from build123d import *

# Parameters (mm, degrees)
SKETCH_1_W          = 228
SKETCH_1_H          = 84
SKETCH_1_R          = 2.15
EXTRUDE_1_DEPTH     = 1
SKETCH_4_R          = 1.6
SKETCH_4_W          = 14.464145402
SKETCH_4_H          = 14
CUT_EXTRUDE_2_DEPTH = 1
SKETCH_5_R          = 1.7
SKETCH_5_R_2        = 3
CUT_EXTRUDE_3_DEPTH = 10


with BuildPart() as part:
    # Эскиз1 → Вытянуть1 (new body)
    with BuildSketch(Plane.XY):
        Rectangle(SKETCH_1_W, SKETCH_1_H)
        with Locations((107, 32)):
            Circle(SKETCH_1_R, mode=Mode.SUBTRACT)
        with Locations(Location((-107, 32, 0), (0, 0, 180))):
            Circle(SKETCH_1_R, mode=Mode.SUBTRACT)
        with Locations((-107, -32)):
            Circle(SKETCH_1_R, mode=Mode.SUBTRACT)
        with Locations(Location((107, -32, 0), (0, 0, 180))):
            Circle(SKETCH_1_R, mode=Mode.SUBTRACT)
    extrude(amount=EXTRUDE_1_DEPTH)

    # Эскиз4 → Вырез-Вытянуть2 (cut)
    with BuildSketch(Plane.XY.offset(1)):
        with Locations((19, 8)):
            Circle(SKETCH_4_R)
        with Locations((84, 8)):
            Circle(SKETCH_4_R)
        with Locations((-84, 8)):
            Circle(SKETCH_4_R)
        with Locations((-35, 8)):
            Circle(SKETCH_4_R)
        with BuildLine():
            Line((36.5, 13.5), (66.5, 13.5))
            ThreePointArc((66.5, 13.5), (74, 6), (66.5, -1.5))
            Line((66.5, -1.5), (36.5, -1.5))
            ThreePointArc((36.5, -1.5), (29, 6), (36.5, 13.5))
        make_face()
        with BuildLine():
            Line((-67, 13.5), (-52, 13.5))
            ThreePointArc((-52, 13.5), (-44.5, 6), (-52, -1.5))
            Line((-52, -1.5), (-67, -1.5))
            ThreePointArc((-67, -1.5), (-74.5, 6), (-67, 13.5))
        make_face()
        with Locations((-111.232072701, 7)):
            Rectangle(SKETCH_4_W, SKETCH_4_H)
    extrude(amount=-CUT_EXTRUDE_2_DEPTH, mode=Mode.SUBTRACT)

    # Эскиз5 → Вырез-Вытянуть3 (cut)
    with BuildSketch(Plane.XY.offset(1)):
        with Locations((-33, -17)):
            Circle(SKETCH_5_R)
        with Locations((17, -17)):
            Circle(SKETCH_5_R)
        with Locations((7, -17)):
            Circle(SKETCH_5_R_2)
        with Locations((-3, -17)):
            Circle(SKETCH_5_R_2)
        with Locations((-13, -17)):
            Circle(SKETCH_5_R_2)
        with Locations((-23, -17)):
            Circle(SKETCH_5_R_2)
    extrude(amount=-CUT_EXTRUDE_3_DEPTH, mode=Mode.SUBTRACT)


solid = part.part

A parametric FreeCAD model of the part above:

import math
import FreeCAD as App
import Part
import Sketcher
from FreeCAD import Vector

doc = App.newDocument("Part")
body = doc.addObject("PartDesign::Body", "Body")

sketch1 = doc.addObject("Sketcher::SketchObject", "Sketch")
body.addObject(sketch1)
sketch1.AttachmentSupport = (doc.XY_Plane, [""])
sketch1.MapMode = "FlatFace"
sketch1.addGeometry([
    Part.LineSegment(Vector(-114, 42, 0), Vector(-114, -42, 0)),
    Part.LineSegment(Vector(-114, -42, 0), Vector(114, -42, 0)),
    Part.LineSegment(Vector(114, -42, 0), Vector(114, 42, 0)),
    Part.LineSegment(Vector(114, 42, 0), Vector(-114, 42, 0)),
    Part.Circle(Vector(-107, -32, 0), Vector(0, 0, 1), 2.15),
    Part.Circle(Vector(107, -32, 0), Vector(0, 0, 1), 2.15),
    Part.Circle(Vector(-107, 32, 0), Vector(0, 0, 1), 2.15),
    Part.Circle(Vector(107, 32, 0), Vector(0, 0, 1), 2.15),
], False)
sketch1.addConstraint([
    Sketcher.Constraint("Coincident", 0, 2, 1, 1),
    Sketcher.Constraint("Coincident", 1, 2, 2, 1),
    Sketcher.Constraint("Coincident", 2, 2, 3, 1),
    Sketcher.Constraint("Coincident", 3, 2, 0, 1),
    Sketcher.Constraint("Vertical", 0),
    Sketcher.Constraint("Horizontal", 1),
    Sketcher.Constraint("Vertical", 2),
    Sketcher.Constraint("Horizontal", 3),
    Sketcher.Constraint("Equal", 4, 5),
    Sketcher.Constraint("Equal", 5, 6),
    Sketcher.Constraint("Equal", 6, 7),
    Sketcher.Constraint("Symmetric", 5, 3, 6, 3, -1, 1),
    Sketcher.Constraint("Symmetric", 4, 3, 7, 3, -1, 1),
    Sketcher.Constraint("Symmetric", 0, 2, 2, 2, -1, 1),
    Sketcher.Constraint("Symmetric", 4, 3, 5, 3, -2),
    Sketcher.Constraint("Diameter", 4, 4.3),
    Sketcher.Constraint("DistanceX", 1, 1, 1, 2, 228.0),
    Sketcher.Constraint("DistanceY", 0, 2, 0, 1, 84.0),
    Sketcher.Constraint("DistanceX", 4, 3, -1, 1, 107.0),
    Sketcher.Constraint("DistanceY", 4, 3, -1, 1, 32.0),
])
pad1 = doc.addObject("PartDesign::Pad", "Pad")
body.addObject(pad1)
pad1.Profile = sketch1
pad1.Length = 1

sketch2 = doc.addObject("Sketcher::SketchObject", "Sketch001")
body.addObject(sketch2)
sketch2.AttachmentSupport = (doc.XY_Plane, [""])
sketch2.MapMode = "FlatFace"
sketch2.AttachmentOffset = App.Placement(Vector(0, 0, 1), App.Rotation())
sketch2.addGeometry([
    Part.Circle(Vector(19, 8, 0), Vector(0, 0, 1), 1.6),
    Part.Circle(Vector(84, 8, 0), Vector(0, 0, 1), 1.6),
    Part.Circle(Vector(-84, 8, 0), Vector(0, 0, 1), 1.6),
    Part.Circle(Vector(-35, 8, 0), Vector(0, 0, 1), 1.6),
    Part.LineSegment(Vector(66.5, 13.5, 0), Vector(36.5, 13.5, 0)),
    Part.ArcOfCircle(Part.Circle(Vector(36.5, 6, 0), Vector(0, 0, 1), 7.5), math.radians(90), math.radians(270)),
    Part.LineSegment(Vector(36.5, -1.5, 0), Vector(66.5, -1.5, 0)),
    Part.ArcOfCircle(Part.Circle(Vector(66.5, 6, 0), Vector(0, 0, 1), 7.5), math.radians(-90), math.radians(90)),
    Part.LineSegment(Vector(-52, 13.5, 0), Vector(-67, 13.5, 0)),
    Part.ArcOfCircle(Part.Circle(Vector(-67, 6, 0), Vector(0, 0, 1), 7.5), math.radians(90), math.radians(270)),
    Part.LineSegment(Vector(-67, -1.5, 0), Vector(-52, -1.5, 0)),
    Part.ArcOfCircle(Part.Circle(Vector(-52, 6, 0), Vector(0, 0, 1), 7.5), math.radians(-90), math.radians(90)),
    Part.LineSegment(Vector(-118.464145, 14, 0), Vector(-118.464145, 0, 0)),
    Part.LineSegment(Vector(-118.464145, 0, 0), Vector(-104, 0, 0)),
    Part.LineSegment(Vector(-104, 0, 0), Vector(-104, 14, 0)),
    Part.LineSegment(Vector(-104, 14, 0), Vector(-118.464145, 14, 0)),
], False)
sketch2.addConstraint([
    Sketcher.Constraint("Tangent", 4, 2, 5, 1),
    Sketcher.Constraint("Tangent", 5, 2, 6, 1),
    Sketcher.Constraint("Tangent", 6, 2, 7, 1),
    Sketcher.Constraint("Tangent", 7, 2, 4, 1),
    Sketcher.Constraint("Tangent", 8, 2, 9, 1),
    Sketcher.Constraint("Tangent", 9, 2, 10, 1),
    Sketcher.Constraint("Tangent", 10, 2, 11, 1),
    Sketcher.Constraint("Tangent", 11, 2, 8, 1),
    Sketcher.Constraint("Coincident", 12, 2, 13, 1),
    Sketcher.Constraint("Coincident", 13, 2, 14, 1),
    Sketcher.Constraint("Coincident", 14, 2, 15, 1),
    Sketcher.Constraint("Coincident", 15, 2, 12, 1),
    Sketcher.Constraint("Horizontal", 4),
    Sketcher.Constraint("Horizontal", 6),
    Sketcher.Constraint("Horizontal", 8),
    Sketcher.Constraint("Horizontal", 10),
    Sketcher.Constraint("Vertical", 12),
    Sketcher.Constraint("Horizontal", 13),
    Sketcher.Constraint("Vertical", 14),
    Sketcher.Constraint("Horizontal", 15),
    Sketcher.Constraint("Equal", 0, 1),
    Sketcher.Constraint("Equal", 1, 2),
    Sketcher.Constraint("Equal", 2, 3),
    Sketcher.Constraint("Equal", 7, 9),
    Sketcher.Constraint("Symmetric", 1, 3, 2, 3, -2),
    Sketcher.Constraint("PointOnObject", 12, 2, -1),
    Sketcher.Constraint("Horizontal", 0, 3, 1, 3),
    Sketcher.Constraint("Horizontal", 2, 3, 3, 3),
    Sketcher.Constraint("Horizontal", 7, 3, 9, 3),
    Sketcher.Constraint("Diameter", 0, 3.2),
    Sketcher.Constraint("Radius", 5, 7.5),
    Sketcher.Constraint("DistanceX", 4, 2, 4, 1, 30.0),
    Sketcher.Constraint("DistanceX", 8, 2, 8, 1, 15.0),
    Sketcher.Constraint("DistanceY", 12, 2, 12, 1, 14.0),
    Sketcher.Constraint("DistanceX", -1, 1, 0, 3, 19.0),
    Sketcher.Constraint("DistanceY", -1, 1, 0, 3, 8.0),
    Sketcher.Constraint("DistanceX", -1, 1, 1, 3, 84.0),
    Sketcher.Constraint("DistanceX", 3, 3, -1, 1, 35.0),
    Sketcher.Constraint("DistanceY", -1, 1, 5, 3, 6.0),
    Sketcher.Constraint("DistanceX", 9, 3, -1, 1, 67.0),
    Sketcher.Constraint("DistanceX", 13, 2, -1, 1, 104.0),
    Sketcher.Constraint("DistanceX", -1, 1, 5, 3, 36.5),
    Sketcher.Constraint("DistanceX", 13, 1, 13, 2, 14.464145),
])
pocket1 = doc.addObject("PartDesign::Pocket", "Pocket")
body.addObject(pocket1)
pocket1.Profile = sketch2
pocket1.Length = 1

sketch3 = doc.addObject("Sketcher::SketchObject", "Sketch002")
body.addObject(sketch3)
sketch3.AttachmentSupport = (doc.XY_Plane, [""])
sketch3.MapMode = "FlatFace"
sketch3.AttachmentOffset = App.Placement(Vector(0, 0, 1), App.Rotation())
sketch3.addGeometry([
    Part.Circle(Vector(-33, -17, 0), Vector(0, 0, 1), 1.7),
    Part.Circle(Vector(17, -17, 0), Vector(0, 0, 1), 1.7),
    Part.Circle(Vector(7, -17, 0), Vector(0, 0, 1), 3),
    Part.Circle(Vector(-3, -17, 0), Vector(0, 0, 1), 3),
    Part.Circle(Vector(-13, -17, 0), Vector(0, 0, 1), 3),
    Part.Circle(Vector(-23, -17, 0), Vector(0, 0, 1), 3),
], False)
sketch3.addConstraint([
    Sketcher.Constraint("Equal", 0, 1),
    Sketcher.Constraint("Equal", 2, 3),
    Sketcher.Constraint("Equal", 3, 4),
    Sketcher.Constraint("Equal", 4, 5),
    Sketcher.Constraint("Horizontal", 0, 3, 1, 3),
    Sketcher.Constraint("Horizontal", 1, 3, 2, 3),
    Sketcher.Constraint("Horizontal", 2, 3, 3, 3),
    Sketcher.Constraint("Horizontal", 3, 3, 4, 3),
    Sketcher.Constraint("Horizontal", 4, 3, 5, 3),
    Sketcher.Constraint("Diameter", 2, 6.0),
    Sketcher.Constraint("Diameter", 0, 3.4),
    Sketcher.Constraint("DistanceX", 0, 3, -1, 1, 33.0),
    Sketcher.Constraint("DistanceY", 0, 3, -1, 1, 17.0),
    Sketcher.Constraint("DistanceX", -1, 1, 1, 3, 17.0),
    Sketcher.Constraint("DistanceX", -1, 1, 2, 3, 7.0),
    Sketcher.Constraint("DistanceX", 3, 3, -1, 1, 3.0),
    Sketcher.Constraint("DistanceX", 4, 3, -1, 1, 13.0),
    Sketcher.Constraint("DistanceX", 5, 3, -1, 1, 23.0),
])
pocket2 = doc.addObject("PartDesign::Pocket", "Pocket001")
body.addObject(pocket2)
pocket2.Profile = sketch3
pocket2.Length = 10

doc.recompute()
